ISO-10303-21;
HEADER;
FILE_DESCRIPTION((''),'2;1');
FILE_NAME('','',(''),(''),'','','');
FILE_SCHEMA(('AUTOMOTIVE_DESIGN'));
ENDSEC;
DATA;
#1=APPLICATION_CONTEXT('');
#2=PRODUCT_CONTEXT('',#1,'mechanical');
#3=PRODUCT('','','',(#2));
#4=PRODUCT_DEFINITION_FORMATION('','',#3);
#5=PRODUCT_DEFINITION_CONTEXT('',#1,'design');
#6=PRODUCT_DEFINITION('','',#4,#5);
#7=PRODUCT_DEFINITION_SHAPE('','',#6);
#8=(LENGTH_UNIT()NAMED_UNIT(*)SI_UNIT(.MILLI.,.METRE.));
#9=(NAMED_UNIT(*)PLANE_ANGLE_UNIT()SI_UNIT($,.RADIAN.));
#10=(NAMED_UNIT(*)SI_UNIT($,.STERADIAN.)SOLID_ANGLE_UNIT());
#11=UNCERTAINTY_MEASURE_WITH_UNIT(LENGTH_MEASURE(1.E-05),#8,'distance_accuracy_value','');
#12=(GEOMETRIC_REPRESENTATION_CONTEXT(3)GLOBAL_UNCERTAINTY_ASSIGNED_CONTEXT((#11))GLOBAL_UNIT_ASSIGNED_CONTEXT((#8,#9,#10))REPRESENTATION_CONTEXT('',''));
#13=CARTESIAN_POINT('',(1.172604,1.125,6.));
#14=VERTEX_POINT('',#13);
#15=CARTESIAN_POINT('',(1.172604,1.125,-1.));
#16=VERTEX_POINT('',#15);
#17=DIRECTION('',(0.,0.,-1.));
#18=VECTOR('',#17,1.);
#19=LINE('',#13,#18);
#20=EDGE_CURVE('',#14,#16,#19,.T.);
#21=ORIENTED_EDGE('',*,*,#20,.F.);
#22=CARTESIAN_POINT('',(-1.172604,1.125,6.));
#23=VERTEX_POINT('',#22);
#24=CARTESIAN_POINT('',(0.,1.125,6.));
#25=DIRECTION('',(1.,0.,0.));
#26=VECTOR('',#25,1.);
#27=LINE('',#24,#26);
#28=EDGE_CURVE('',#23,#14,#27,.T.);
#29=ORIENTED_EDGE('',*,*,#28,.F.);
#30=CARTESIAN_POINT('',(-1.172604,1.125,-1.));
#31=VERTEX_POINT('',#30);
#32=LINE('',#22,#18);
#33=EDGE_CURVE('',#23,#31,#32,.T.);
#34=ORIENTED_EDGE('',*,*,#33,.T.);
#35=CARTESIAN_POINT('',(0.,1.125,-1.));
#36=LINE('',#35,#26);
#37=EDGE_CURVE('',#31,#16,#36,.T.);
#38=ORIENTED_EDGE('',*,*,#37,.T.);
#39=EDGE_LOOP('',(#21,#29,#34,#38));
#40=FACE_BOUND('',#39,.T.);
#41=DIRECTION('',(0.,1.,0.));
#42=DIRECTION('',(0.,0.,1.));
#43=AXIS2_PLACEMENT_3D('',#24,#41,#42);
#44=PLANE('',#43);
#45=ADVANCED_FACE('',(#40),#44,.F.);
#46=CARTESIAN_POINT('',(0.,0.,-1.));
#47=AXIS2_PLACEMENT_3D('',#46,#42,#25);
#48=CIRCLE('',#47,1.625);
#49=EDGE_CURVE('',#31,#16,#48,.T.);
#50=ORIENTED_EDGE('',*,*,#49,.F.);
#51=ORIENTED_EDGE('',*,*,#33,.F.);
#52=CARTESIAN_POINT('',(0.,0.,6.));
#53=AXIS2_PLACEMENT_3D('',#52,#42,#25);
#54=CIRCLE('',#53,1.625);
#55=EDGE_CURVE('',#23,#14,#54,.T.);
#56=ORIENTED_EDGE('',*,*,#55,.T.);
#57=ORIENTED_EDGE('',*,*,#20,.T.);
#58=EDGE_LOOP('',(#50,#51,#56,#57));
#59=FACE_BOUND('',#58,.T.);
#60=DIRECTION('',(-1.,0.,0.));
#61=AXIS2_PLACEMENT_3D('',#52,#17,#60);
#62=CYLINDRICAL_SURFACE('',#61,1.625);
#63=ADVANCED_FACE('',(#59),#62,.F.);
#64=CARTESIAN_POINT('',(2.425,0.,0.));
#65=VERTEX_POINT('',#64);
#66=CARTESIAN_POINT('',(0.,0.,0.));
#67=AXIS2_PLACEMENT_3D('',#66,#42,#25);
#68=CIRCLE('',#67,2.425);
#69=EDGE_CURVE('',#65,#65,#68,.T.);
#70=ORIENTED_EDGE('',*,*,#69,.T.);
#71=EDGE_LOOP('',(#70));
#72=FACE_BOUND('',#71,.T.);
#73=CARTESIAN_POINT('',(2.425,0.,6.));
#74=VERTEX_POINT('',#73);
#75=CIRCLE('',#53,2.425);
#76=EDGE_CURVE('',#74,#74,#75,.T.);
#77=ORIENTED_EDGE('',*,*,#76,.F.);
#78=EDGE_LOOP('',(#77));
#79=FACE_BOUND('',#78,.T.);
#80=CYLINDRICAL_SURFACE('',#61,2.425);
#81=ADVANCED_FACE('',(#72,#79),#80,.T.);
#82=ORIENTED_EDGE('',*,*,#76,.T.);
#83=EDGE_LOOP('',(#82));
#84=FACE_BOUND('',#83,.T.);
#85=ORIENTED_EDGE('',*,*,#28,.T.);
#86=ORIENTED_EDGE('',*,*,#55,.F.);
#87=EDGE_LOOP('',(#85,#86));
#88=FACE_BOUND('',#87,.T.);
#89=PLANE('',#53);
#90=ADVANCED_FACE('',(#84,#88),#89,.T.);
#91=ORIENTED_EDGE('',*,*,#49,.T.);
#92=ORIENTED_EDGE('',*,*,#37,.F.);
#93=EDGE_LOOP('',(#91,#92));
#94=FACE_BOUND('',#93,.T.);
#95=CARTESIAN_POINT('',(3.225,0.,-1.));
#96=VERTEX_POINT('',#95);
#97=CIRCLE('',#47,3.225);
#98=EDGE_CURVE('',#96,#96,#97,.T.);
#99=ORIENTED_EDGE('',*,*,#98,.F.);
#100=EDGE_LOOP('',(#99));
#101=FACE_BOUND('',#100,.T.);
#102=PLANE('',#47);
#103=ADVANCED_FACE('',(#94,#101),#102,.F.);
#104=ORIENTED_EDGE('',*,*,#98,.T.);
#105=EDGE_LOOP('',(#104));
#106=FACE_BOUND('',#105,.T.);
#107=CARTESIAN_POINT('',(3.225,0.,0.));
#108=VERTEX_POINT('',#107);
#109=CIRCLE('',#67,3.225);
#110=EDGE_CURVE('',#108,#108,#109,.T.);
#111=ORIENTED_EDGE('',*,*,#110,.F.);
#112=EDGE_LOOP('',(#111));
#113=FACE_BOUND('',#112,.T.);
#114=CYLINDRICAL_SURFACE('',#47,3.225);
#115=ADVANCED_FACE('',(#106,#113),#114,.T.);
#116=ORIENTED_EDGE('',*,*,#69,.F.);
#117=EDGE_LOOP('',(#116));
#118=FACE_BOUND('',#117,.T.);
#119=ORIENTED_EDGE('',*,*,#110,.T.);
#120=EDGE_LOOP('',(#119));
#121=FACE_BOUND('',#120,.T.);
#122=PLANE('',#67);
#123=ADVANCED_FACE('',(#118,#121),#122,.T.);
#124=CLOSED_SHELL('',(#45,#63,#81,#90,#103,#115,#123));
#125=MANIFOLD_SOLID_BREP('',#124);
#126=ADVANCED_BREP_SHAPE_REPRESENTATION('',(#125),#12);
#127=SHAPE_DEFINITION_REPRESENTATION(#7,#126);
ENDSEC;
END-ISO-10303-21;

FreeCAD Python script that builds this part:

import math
import FreeCAD as App
import Part
import Sketcher
from FreeCAD import Vector
Q = App.Units.Quantity

doc = App.newDocument("Part")
params = doc.addObject("Spreadsheet::Sheet", "Params")
for row, (alias, value) in enumerate([
    ("sketch1_diameter", "4.85 mm"),
    ("pad1_length", "6 mm"),
    ("sketch2_diameter", "6.45 mm"),
    ("pad2_length", "1 mm"),
], start=1):
    params.set(f"A{row}", alias)
    params.set(f"B{row}", "=" + value)
    params.setAlias(f"B{row}", alias)

body = doc.addObject("PartDesign::Body", "Body")

# Sketch on XY plane
sketch1 = doc.addObject("Sketcher::SketchObject", "Sketch")
body.addObject(sketch1)
sketch1.AttachmentSupport = (doc.XY_Plane, [""])
sketch1.MapMode = "FlatFace"
sketch1.addGeometry(Part.Circle(Vector(0, 0, 0), Vector(0, 0, 1), 2.4), False)
sketch1.addGeometry(Part.ArcOfCircle(Part.Circle(Vector(0, 0, 0), Vector(0, 0, 1), 1.6), math.radians(136), math.radians(404)), False)
sketch1.addGeometry(Part.LineSegment(Vector(-1.2, 1.1, 0), Vector(1.2, 1.1, 0)), False)
sketch1.addConstraint(Sketcher.Constraint("Coincident", 1, 1, 2, 1))
sketch1.addConstraint(Sketcher.Constraint("Coincident", 2, 2, 1, 2))
sketch1.addConstraint(Sketcher.Constraint("Horizontal", 2))
sketch1.addConstraint(Sketcher.Constraint("Coincident", 0, 3, -1, 1))
sketch1.addConstraint(Sketcher.Constraint("Coincident", 1, 3, -1, 1))
sketch1.addConstraint(Sketcher.Constraint("Diameter", 0, Q("4.85 mm")))
sketch1.addConstraint(Sketcher.Constraint("Radius", 1, Q("1.625 mm")))
sketch1.addConstraint(Sketcher.Constraint("DistanceY", -1, 1, 1, 1, Q("1.125 mm")))
sketch1.setExpression("Constraints[5]", "Params.sketch1_diameter")
pad1 = doc.addObject("PartDesign::Pad", "Pad")
body.addObject(pad1)
pad1.Profile = sketch1
pad1.setExpression("Length", "Params.pad1_length")

# Sketch on XY plane
sketch2 = doc.addObject("Sketcher::SketchObject", "Sketch001")
body.addObject(sketch2)
sketch2.AttachmentSupport = (doc.XY_Plane, [""])
sketch2.MapMode = "FlatFace"
sketch2.AttachmentOffset = App.Placement(Vector(0, 0, -1), App.Rotation())
sketch2.addGeometry(Part.Circle(Vector(0, 0, 0), Vector(0, 0, 1), 3.2), False)
sketch2.addGeometry(Part.LineSegment(Vector(-1.2, 1.1, 0), Vector(1.2, 1.1, 0)), False)
sketch2.addGeometry(Part.ArcOfCircle(Part.Circle(Vector(0, 0, 0), Vector(0, 0, 1), 1.6), math.radians(136), math.radians(404)), False)
sketch2.addConstraint(Sketcher.Constraint("Coincident", 1, 1, 2, 1))
sketch2.addConstraint(Sketcher.Constraint("Coincident", 2, 2, 1, 2))
sketch2.addConstraint(Sketcher.Constraint("Horizontal", 1))
sketch2.addConstraint(Sketcher.Constraint("Coincident", 0, 3, -1, 1))
sketch2.addConstraint(Sketcher.Constraint("Coincident", 2, 3, -1, 1))
sketch2.addConstraint(Sketcher.Constraint("Diameter", 0, Q("6.45 mm")))
sketch2.addConstraint(Sketcher.Constraint("Radius", 2, Q("1.625 mm")))
sketch2.addConstraint(Sketcher.Constraint("DistanceY", -1, 1, 1, 1, Q("1.125 mm")))
sketch2.setExpression("Constraints[5]", "Params.sketch2_diameter")
pad2 = doc.addObject("PartDesign::Pad", "Pad001")
body.addObject(pad2)
pad2.Profile = sketch2
pad2.setExpression("Length", "Params.pad2_length")

doc.recompute()
